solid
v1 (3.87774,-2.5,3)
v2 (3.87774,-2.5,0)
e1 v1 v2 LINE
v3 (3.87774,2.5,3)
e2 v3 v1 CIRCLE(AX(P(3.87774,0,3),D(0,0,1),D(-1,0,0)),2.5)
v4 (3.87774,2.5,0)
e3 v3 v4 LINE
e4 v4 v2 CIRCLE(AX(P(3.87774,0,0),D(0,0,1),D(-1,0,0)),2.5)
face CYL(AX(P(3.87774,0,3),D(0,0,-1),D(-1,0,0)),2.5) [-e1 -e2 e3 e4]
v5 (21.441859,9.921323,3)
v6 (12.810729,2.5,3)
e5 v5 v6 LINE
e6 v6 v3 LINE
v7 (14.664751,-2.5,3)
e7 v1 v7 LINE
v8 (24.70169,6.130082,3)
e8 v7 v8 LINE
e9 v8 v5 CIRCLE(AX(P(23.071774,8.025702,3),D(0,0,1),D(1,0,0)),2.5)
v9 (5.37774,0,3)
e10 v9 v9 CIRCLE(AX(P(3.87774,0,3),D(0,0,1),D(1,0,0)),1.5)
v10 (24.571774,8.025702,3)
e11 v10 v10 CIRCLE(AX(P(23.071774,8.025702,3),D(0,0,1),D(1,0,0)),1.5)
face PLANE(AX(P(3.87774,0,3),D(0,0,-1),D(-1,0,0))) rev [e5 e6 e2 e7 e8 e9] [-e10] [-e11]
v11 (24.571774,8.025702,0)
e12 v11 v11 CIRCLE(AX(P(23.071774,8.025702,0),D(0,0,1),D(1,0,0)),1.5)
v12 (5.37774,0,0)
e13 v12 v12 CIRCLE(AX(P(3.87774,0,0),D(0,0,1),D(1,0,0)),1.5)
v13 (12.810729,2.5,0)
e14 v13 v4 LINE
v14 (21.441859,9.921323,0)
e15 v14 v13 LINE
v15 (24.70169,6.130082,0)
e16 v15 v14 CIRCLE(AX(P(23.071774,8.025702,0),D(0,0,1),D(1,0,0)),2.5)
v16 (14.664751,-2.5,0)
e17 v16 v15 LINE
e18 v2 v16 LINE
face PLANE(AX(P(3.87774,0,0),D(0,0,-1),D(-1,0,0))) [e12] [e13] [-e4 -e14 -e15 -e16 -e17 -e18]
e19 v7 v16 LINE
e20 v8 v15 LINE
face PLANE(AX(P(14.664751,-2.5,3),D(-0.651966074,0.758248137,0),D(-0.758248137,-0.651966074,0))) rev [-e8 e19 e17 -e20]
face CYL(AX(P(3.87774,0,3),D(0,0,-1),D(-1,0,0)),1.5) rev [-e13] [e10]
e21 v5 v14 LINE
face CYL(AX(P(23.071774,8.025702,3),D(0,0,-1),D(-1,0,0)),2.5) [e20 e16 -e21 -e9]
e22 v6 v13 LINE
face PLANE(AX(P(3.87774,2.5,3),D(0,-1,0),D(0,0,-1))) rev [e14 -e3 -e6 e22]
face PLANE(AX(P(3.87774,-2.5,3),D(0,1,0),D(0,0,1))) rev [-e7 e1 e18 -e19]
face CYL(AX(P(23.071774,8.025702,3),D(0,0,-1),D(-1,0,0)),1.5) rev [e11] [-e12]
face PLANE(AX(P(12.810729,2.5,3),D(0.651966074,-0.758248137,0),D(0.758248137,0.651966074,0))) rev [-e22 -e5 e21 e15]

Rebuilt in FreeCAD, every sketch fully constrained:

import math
import FreeCAD as App
import Part
import Sketcher
Q = App.Units.Quantity

doc = App.newDocument("Part")
body = doc.addObject("PartDesign::Body", "Body")

sketch1 = doc.addObject("Sketcher::SketchObject", "Sketch")
body.addObject(sketch1)
sketch1.AttachmentSupport = (doc.XY_Plane, [""])
sketch1.MapMode = "FlatFace"
sketch1.addGeometry(Part.LineSegment(App.Vector(3.9, -2.5, 0), App.Vector(14.7, -2.5, 0)), False)
sketch1.addGeometry(Part.LineSegment(App.Vector(14.7, -2.5, 0), App.Vector(24.7, 6.1, 0)), False)
sketch1.addGeometry(Part.ArcOfCircle(Part.Circle(App.Vector(23.1, 8, 0), App.Vector(0, 0, 1), 2.5), math.radians(-49), math.radians(131)), False)
sketch1.addGeometry(Part.LineSegment(App.Vector(21.4, 9.9, 0), App.Vector(12.8, 2.5, 0)), False)
sketch1.addGeometry(Part.LineSegment(App.Vector(12.8, 2.5, 0), App.Vector(3.9, 2.5, 0)), False)
sketch1.addGeometry(Part.ArcOfCircle(Part.Circle(App.Vector(3.9, 0, 0), App.Vector(0, 0, 1), 2.5), math.radians(90), math.radians(270)), False)
sketch1.addGeometry(Part.Circle(App.Vector(3.9, 0, 0), App.Vector(0, 0, 1), 1.5), False)
sketch1.addGeometry(Part.Circle(App.Vector(23.1, 8, 0), App.Vector(0, 0, 1), 1.5), False)
sketch1.addConstraint(Sketcher.Constraint("Coincident", 0, 2, 1, 1))
sketch1.addConstraint(Sketcher.Constraint("Tangent", 1, 2, 2, 1))
sketch1.addConstraint(Sketcher.Constraint("Tangent", 2, 2, 3, 1))
sketch1.addConstraint(Sketcher.Constraint("Coincident", 3, 2, 4, 1))
sketch1.addConstraint(Sketcher.Constraint("Tangent", 4, 2, 5, 1))
sketch1.addConstraint(Sketcher.Constraint("Tangent", 5, 2, 0, 1))
sketch1.addConstraint(Sketcher.Constraint("Horizontal", 0))
sketch1.addConstraint(Sketcher.Constraint("Horizontal", 4))
sketch1.addConstraint(Sketcher.Constraint("Coincident", 6, 3, 5, 3))
sketch1.addConstraint(Sketcher.Constraint("Coincident", 7, 3, 2, 3))
sketch1.addConstraint(Sketcher.Constraint("Equal", 2, 5))
sketch1.addConstraint(Sketcher.Constraint("Equal", 6, 7))
sketch1.addConstraint(Sketcher.Constraint("PointOnObject", 5, 3, -1))
sketch1.addConstraint(Sketcher.Constraint("Parallel", 1, 3))
sketch1.addConstraint(Sketcher.Constraint("Diameter", 6, 3.0))
sketch1.addConstraint(Sketcher.Constraint("Radius", 2, 2.5))
sketch1.addConstraint(Sketcher.Constraint("Angle", 1, Q("40.69 deg")))
sketch1.addConstraint(Sketcher.Constraint("DistanceX", 0, 1, 0, 2, 10.787011))
sketch1.addConstraint(Sketcher.Constraint("Distance", 1, 13.237011))
sketch1.addConstraint(Sketcher.Constraint("DistanceX", -1, 1, 5, 3, 3.87774))
pad1 = doc.addObject("PartDesign::Pad", "Pad")
body.addObject(pad1)
pad1.Profile = sketch1
pad1.Length = 3

doc.recompute()
